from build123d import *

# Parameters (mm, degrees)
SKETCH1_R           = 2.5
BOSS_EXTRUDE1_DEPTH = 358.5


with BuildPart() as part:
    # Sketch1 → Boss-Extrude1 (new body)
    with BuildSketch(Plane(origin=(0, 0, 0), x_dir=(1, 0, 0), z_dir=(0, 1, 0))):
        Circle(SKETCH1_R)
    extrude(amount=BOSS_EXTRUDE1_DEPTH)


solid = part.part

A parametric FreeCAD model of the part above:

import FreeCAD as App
import Part
import Sketcher
from FreeCAD import Vector
Q = App.Units.Quantity

doc = App.newDocument("Part")
body = doc.addObject("PartDesign::Body", "Body")

# Sketch on XZ plane
sketch1 = body.newObject("Sketcher::SketchObject", "Sketch")
sketch1.AttachmentSupport = (doc.getObject("XZ_Plane"), [""])
sketch1.MapMode = "FlatFace"
sketch1.addGeometry(Part.Circle(Vector(0, 0, 0), Vector(0, 0, 1), 2.5), False)
sketch1.addConstraint(Sketcher.Constraint("Coincident", 0, 3, -1, 1))
sketch1.addConstraint(Sketcher.Constraint("Diameter", 0, Q("5 mm")))
pad1 = body.newObject("PartDesign::Pad", "Pad")
pad1.Profile = sketch1
pad1.Length = 358.5
pad1.Reversed = True

doc.recompute()
